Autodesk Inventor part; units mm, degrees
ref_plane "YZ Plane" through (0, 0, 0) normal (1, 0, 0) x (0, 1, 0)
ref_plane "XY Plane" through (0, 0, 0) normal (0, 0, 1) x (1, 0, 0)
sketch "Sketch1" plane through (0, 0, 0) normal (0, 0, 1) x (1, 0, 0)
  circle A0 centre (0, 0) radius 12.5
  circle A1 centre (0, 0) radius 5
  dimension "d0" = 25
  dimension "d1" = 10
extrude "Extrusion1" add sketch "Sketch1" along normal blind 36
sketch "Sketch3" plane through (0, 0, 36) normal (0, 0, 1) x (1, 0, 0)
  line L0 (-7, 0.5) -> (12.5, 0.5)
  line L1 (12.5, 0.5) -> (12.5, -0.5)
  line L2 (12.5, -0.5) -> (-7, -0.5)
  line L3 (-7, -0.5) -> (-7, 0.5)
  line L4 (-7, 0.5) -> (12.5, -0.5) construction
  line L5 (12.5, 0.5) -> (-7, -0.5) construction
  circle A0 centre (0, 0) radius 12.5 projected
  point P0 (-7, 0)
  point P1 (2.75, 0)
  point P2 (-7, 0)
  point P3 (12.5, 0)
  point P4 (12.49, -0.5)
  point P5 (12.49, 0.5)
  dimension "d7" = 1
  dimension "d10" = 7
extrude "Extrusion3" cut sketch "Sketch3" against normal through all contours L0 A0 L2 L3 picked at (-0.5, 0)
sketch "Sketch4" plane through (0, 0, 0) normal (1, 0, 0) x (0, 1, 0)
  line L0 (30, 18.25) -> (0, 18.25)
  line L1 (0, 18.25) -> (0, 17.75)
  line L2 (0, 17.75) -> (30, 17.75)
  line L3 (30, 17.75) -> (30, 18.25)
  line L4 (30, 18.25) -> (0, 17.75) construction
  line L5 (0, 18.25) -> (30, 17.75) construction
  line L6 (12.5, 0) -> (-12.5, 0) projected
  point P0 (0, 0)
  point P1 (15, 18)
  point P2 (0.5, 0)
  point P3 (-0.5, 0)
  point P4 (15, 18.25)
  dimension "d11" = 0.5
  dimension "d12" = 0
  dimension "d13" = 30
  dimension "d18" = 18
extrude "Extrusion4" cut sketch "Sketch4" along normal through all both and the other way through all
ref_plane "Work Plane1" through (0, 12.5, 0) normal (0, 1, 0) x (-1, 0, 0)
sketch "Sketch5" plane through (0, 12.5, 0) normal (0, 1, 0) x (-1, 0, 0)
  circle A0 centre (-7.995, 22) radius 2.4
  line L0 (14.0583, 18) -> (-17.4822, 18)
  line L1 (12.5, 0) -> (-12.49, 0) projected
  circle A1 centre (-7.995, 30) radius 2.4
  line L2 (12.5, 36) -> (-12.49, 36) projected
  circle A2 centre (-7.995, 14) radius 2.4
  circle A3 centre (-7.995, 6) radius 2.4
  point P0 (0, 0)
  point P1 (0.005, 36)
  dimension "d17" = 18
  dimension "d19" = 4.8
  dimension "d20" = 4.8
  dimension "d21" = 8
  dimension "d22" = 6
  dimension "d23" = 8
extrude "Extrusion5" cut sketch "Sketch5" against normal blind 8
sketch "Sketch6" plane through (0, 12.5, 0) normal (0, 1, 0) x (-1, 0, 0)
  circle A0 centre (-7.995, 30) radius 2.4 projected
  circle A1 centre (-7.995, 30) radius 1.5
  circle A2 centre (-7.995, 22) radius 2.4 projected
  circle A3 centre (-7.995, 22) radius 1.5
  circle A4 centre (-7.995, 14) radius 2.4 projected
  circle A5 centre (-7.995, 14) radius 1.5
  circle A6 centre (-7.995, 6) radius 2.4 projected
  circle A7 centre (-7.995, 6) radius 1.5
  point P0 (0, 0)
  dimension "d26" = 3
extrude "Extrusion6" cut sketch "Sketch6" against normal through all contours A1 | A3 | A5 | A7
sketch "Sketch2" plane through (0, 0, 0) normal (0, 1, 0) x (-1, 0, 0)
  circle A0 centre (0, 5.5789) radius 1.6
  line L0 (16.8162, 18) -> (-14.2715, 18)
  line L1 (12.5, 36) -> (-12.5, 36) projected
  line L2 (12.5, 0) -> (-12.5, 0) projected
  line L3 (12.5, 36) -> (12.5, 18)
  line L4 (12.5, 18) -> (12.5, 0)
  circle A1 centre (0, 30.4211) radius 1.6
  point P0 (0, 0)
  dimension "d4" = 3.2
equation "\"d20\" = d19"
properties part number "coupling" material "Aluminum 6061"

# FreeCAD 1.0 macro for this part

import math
import FreeCAD as App
import Part
import Sketcher
from FreeCAD import Vector

doc = App.newDocument("Part")
params = doc.addObject("Spreadsheet::Sheet", "Params")
for row, (alias, value) in enumerate([
    ("sketch1_diameter", "25 mm"),
    ("sketch1_diameter2", "10 mm"),
    ("pad1_length", "36 mm"),
    ("sketch2_height", "1 mm"),
    ("sketch2_radius", "12.5 mm"),
    ("sketch3_width", "30 mm"),
    ("sketch3_height", "0.5 mm"),
    ("sketch4_diameter", "4.8 mm"),
    ("pocket3_length", "8 mm"),
    ("sketch5_diameter", "3 mm"),
], start=1):
    params.set(f"A{row}", alias)
    params.set(f"B{row}", "=" + value)
    params.setAlias(f"B{row}", alias)

body = doc.addObject("PartDesign::Body", "Body")

sketch1 = doc.addObject("Sketcher::SketchObject", "Sketch")
body.addObject(sketch1)
sketch1.AttachmentSupport = (doc.XY_Plane, [""])
sketch1.MapMode = "FlatFace"
sketch1.addGeometry([
    Part.Circle(Vector(0, 0, 0), Vector(0, 0, 1), 12),
    Part.Circle(Vector(0, 0, 0), Vector(0, 0, 1), 5),
], False)
sketch1.addConstraint([
    Sketcher.Constraint("Coincident", 0, 3, -1, 1),
    Sketcher.Constraint("Coincident", 1, 3, -1, 1),
    Sketcher.Constraint("Diameter", 0, 25.0),
    Sketcher.Constraint("Diameter", 1, 10.0),
])
sketch1.setExpression("Constraints[2]", "Params.sketch1_diameter")
sketch1.setExpression("Constraints[3]", "Params.sketch1_diameter2")
pad1 = doc.addObject("PartDesign::Pad", "Pad")
body.addObject(pad1)
pad1.Profile = sketch1
pad1.setExpression("Length", "Params.pad1_length")

sketch2 = doc.addObject("Sketcher::SketchObject", "Sketch001")
body.addObject(sketch2)
sketch2.AttachmentSupport = (doc.XY_Plane, [""])
sketch2.MapMode = "FlatFace"
sketch2.AttachmentOffset = App.Placement(Vector(0, 0, 36), App.Rotation())
sketch2.addGeometry([
    Part.LineSegment(Vector(12.5, 0.5, 0), Vector(-7, 0.5, 0)),
    Part.LineSegment(Vector(-7, 0.5, 0), Vector(-7, -0.5, 0)),
    Part.LineSegment(Vector(-7, -0.5, 0), Vector(12.5, -0.5, 0)),
    Part.ArcOfCircle(Part.Circle(Vector(0, 0, 0), Vector(0, 0, 1), 12.5), math.radians(-2.29), math.radians(2.29)),
], False)
sketch2.addConstraint([
    Sketcher.Constraint("Coincident", 0, 2, 1, 1),
    Sketcher.Constraint("Coincident", 1, 2, 2, 1),
    Sketcher.Constraint("Coincident", 2, 2, 3, 1),
    Sketcher.Constraint("Coincident", 3, 2, 0, 1),
    Sketcher.Constraint("Horizontal", 0),
    Sketcher.Constraint("Vertical", 1),
    Sketcher.Constraint("Horizontal", 2),
    Sketcher.Constraint("Coincident", 3, 3, -1, 1),
    Sketcher.Constraint("Vertical", 2, 2, 3, 2),
    Sketcher.Constraint("DistanceY", 1, 2, 1, 1, 1.0),
    Sketcher.Constraint("DistanceX", 0, 2, -1, 1, 7.0),
    Sketcher.Constraint("Radius", 3, 12.5),
])
sketch2.setExpression("Constraints[9]", "Params.sketch2_height")
sketch2.setExpression("Constraints[11]", "Params.sketch2_radius")
pocket1 = doc.addObject("PartDesign::Pocket", "Pocket")
body.addObject(pocket1)
pocket1.Profile = sketch2
pocket1.Type = "ThroughAll"

sketch3 = doc.addObject("Sketcher::SketchObject", "Sketch002")
body.addObject(sketch3)
sketch3.AttachmentSupport = (doc.YZ_Plane, [""])
sketch3.MapMode = "FlatFace"
sketch3.addGeometry([
    Part.LineSegment(Vector(30, 17.8, 0), Vector(30, 18.2, 0)),
    Part.LineSegment(Vector(30, 18.2, 0), Vector(0, 18.2, 0)),
    Part.LineSegment(Vector(0, 18.2, 0), Vector(0, 17.8, 0)),
    Part.LineSegment(Vector(0, 17.8, 0), Vector(30, 17.8, 0)),
], False)
sketch3.addConstraint([
    Sketcher.Constraint("Coincident", 0, 2, 1, 1),
    Sketcher.Constraint("Coincident", 1, 2, 2, 1),
    Sketcher.Constraint("Coincident", 2, 2, 3, 1),
    Sketcher.Constraint("Coincident", 3, 2, 0, 1),
    Sketcher.Constraint("Vertical", 0),
    Sketcher.Constraint("Horizontal", 1),
    Sketcher.Constraint("Vertical", 2),
    Sketcher.Constraint("Horizontal", 3),
    Sketcher.Constraint("PointOnObject", 1, 2, -2),
    Sketcher.Constraint("DistanceX", 1, 2, 1, 1, 30.0),
    Sketcher.Constraint("DistanceY", 0, 1, 0, 2, 0.5),
    Sketcher.Constraint("DistanceY", -1, 1, 0, 2, 18.25),
])
sketch3.setExpression("Constraints[9]", "Params.sketch3_width")
sketch3.setExpression("Constraints[10]", "Params.sketch3_height")
pocket2 = doc.addObject("PartDesign::Pocket", "Pocket001")
body.addObject(pocket2)
pocket2.Profile = sketch3
pocket2.Type = "ThroughAll"
pocket2.Midplane = True

sketch4 = doc.addObject("Sketcher::SketchObject", "Sketch003")
body.addObject(sketch4)
sketch4.AttachmentSupport = (doc.XZ_Plane, [""])
sketch4.MapMode = "FlatFace"
sketch4.AttachmentOffset = App.Placement(Vector(0, 0, -12.5), App.Rotation())
sketch4.addGeometry([
    Part.Circle(Vector(8, 22, 0), Vector(0, 0, 1), 2.4),
    Part.Circle(Vector(8, 30, 0), Vector(0, 0, 1), 2.4),
    Part.Circle(Vector(8, 14, 0), Vector(0, 0, 1), 2.4),
    Part.Circle(Vector(8, 6, 0), Vector(0, 0, 1), 2.4),
], False)
sketch4.addConstraint([
    Sketcher.Constraint("Equal", 0, 1),
    Sketcher.Constraint("Equal", 1, 2),
    Sketcher.Constraint("Equal", 2, 3),
    Sketcher.Constraint("Vertical", 0, 3, 1, 3),
    Sketcher.Constraint("Vertical", 1, 3, 2, 3),
    Sketcher.Constraint("Vertical", 2, 3, 3, 3),
    Sketcher.Constraint("Diameter", 0, 4.8),
    Sketcher.Constraint("DistanceY", -1, 1, 3, 3, 6.0),
    Sketcher.Constraint("DistanceY", 0, 3, 1, 3, 8.0),
    Sketcher.Constraint("DistanceY", 2, 3, 0, 3, 8.0),
    Sketcher.Constraint("DistanceY", 3, 3, 2, 3, 8.0),
    Sketcher.Constraint("DistanceX", -1, 1, 0, 3, 7.995),
])
sketch4.setExpression("Constraints[6]", "Params.sketch4_diameter")
pocket3 = doc.addObject("PartDesign::Pocket", "Pocket002")
body.addObject(pocket3)
pocket3.Profile = sketch4
pocket3.setExpression("Length", "Params.pocket3_length")
pocket3.Reversed = True

sketch5 = doc.addObject("Sketcher::SketchObject", "Sketch004")
body.addObject(sketch5)
sketch5.AttachmentSupport = (doc.XZ_Plane, [""])
sketch5.MapMode = "FlatFace"
sketch5.AttachmentOffset = App.Placement(Vector(0, 0, -12.5), App.Rotation())
sketch5.addGeometry([
    Part.Circle(Vector(8, 30, 0), Vector(0, 0, 1), 1.5),
    Part.Circle(Vector(8, 22, 0), Vector(0, 0, 1), 1.5),
    Part.Circle(Vector(8, 14, 0), Vector(0, 0, 1), 1.5),
    Part.Circle(Vector(8, 6, 0), Vector(0, 0, 1), 1.5),
], False)
sketch5.addConstraint([
    Sketcher.Constraint("Equal", 0, 1),
    Sketcher.Constraint("Equal", 1, 2),
    Sketcher.Constraint("Equal", 2, 3),
    Sketcher.Constraint("Vertical", 0, 3, 1, 3),
    Sketcher.Constraint("Vertical", 1, 3, 2, 3),
    Sketcher.Constraint("Vertical", 2, 3, 3, 3),
    Sketcher.Constraint("Diameter", 0, 3.0),
    Sketcher.Constraint("DistanceY", -1, 1, 0, 3, 30.0),
    Sketcher.Constraint("DistanceY", -1, 1, 1, 3, 22.0),
    Sketcher.Constraint("DistanceY", -1, 1, 2, 3, 14.0),
    Sketcher.Constraint("DistanceY", -1, 1, 3, 3, 6.0),
    Sketcher.Constraint("DistanceX", -1, 1, 0, 3, 7.995),
])
sketch5.setExpression("Constraints[6]", "Params.sketch5_diameter")
pocket4 = doc.addObject("PartDesign::Pocket", "Pocket003")
body.addObject(pocket4)
pocket4.Profile = sketch5
pocket4.Type = "ThroughAll"
pocket4.Reversed = True

doc.recompute()
